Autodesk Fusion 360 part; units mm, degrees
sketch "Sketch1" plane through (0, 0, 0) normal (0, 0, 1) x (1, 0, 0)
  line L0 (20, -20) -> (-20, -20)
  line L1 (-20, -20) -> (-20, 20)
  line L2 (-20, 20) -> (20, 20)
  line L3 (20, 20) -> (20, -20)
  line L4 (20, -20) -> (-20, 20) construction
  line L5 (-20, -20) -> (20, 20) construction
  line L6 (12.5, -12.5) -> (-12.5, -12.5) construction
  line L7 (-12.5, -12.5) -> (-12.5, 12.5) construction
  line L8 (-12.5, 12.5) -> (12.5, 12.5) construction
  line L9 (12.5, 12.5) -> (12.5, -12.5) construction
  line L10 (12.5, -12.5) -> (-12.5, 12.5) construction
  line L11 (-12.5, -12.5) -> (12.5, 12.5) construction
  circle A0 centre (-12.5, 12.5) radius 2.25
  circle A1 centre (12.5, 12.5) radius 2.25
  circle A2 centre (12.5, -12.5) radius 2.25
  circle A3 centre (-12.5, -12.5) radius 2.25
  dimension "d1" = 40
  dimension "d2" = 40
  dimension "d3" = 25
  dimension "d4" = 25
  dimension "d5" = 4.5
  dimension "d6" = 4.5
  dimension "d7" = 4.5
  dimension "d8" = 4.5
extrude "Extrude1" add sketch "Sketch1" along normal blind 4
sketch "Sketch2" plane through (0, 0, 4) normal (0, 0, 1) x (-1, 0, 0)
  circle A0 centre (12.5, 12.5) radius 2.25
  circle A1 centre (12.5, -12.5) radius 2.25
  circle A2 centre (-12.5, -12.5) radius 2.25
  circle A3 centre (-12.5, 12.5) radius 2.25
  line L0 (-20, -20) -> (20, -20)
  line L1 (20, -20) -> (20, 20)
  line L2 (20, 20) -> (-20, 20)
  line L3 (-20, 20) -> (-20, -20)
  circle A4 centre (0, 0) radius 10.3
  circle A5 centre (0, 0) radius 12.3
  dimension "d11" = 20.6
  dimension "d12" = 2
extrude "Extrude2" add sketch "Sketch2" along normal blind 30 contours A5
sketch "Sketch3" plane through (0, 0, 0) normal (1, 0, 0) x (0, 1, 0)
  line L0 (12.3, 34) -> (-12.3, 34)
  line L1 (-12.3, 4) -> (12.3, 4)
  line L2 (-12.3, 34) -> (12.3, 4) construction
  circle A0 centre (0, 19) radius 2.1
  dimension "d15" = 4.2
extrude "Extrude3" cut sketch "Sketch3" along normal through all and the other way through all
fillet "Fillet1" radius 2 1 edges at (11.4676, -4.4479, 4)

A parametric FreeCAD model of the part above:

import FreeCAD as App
import Part
import Sketcher

V = App.Vector
Q = App.Units.Quantity


def edges_at(feature, points):
    """Names of the edges that pass closest to the given points."""
    edges = feature.Shape.Edges
    near = lambda p: min(range(len(edges)), key=lambda i: edges[i].distToShape(Part.Vertex(*p))[0])
    return sorted({f"Edge{near(p) + 1}" for p in points})

doc = App.newDocument("Part")
body = doc.addObject("PartDesign::Body", "Body")

sketch1 = doc.addObject("Sketcher::SketchObject", "Sketch")
body.addObject(sketch1)
sketch1.AttachmentSupport = (doc.XY_Plane, [""])
sketch1.MapMode = "FlatFace"
sketch1.addGeometry([
    Part.LineSegment(V(-20, -20, 0), V(20, -20, 0)),
    Part.LineSegment(V(20, -20, 0), V(20, 20, 0)),
    Part.LineSegment(V(20, 20, 0), V(-20, 20, 0)),
    Part.LineSegment(V(-20, 20, 0), V(-20, -20, 0)),
    Part.Circle(V(-12.5, -12.5, 0), V(0, 0, 1), 2.2),
    Part.Circle(V(12.5, -12.5, 0), V(0, 0, 1), 2.2),
    Part.Circle(V(-12.5, 12.5, 0), V(0, 0, 1), 2.2),
    Part.Circle(V(12.5, 12.5, 0), V(0, 0, 1), 2.2),
], False)
sketch1.addConstraint([
    Sketcher.Constraint("Coincident", 0, 2, 1, 1),
    Sketcher.Constraint("Coincident", 1, 2, 2, 1),
    Sketcher.Constraint("Coincident", 2, 2, 3, 1),
    Sketcher.Constraint("Coincident", 3, 2, 0, 1),
    Sketcher.Constraint("Horizontal", 0),
    Sketcher.Constraint("Vertical", 1),
    Sketcher.Constraint("Horizontal", 2),
    Sketcher.Constraint("Vertical", 3),
    Sketcher.Constraint("Equal", 4, 5),
    Sketcher.Constraint("Equal", 5, 6),
    Sketcher.Constraint("Equal", 6, 7),
    Sketcher.Constraint("Symmetric", 5, 3, 6, 3, -1, 1),
    Sketcher.Constraint("Symmetric", 4, 3, 7, 3, -1, 1),
    Sketcher.Constraint("Symmetric", 0, 2, 2, 2, -1, 1),
    Sketcher.Constraint("Symmetric", 4, 3, 5, 3, -2),
    Sketcher.Constraint("Equal", 2, 1),
    Sketcher.Constraint("Diameter", 4, Q("4.5 mm")),
    Sketcher.Constraint("DistanceX", 0, 1, 0, 2, Q("40 mm")),
    Sketcher.Constraint("DistanceX", 4, 3, 5, 3, Q("25 mm")),
    Sketcher.Constraint("DistanceY", 4, 3, 6, 3, Q("25 mm")),
])
pad1 = doc.addObject("PartDesign::Pad", "Pad")
body.addObject(pad1)
pad1.Profile = sketch1
pad1.Length = 4

sketch2 = doc.addObject("Sketcher::SketchObject", "Sketch001")
body.addObject(sketch2)
sketch2.AttachmentSupport = (doc.XY_Plane, [""])
sketch2.MapMode = "FlatFace"
sketch2.AttachmentOffset = App.Placement(V(0, 0, 4), App.Rotation())
sketch2.addGeometry([
    Part.Circle(V(0, 0, 0), V(0, 0, 1), 12),
    Part.Circle(V(0, 0, 0), V(0, 0, 1), 10),
], False)
sketch2.addConstraint([
    Sketcher.Constraint("Coincident", 0, 3, -1, 1),
    Sketcher.Constraint("Coincident", 1, 3, -1, 1),
    Sketcher.Constraint("Diameter", 1, Q("20.6 mm")),
    Sketcher.Constraint("Diameter", 0, Q("24.6 mm")),
])
pad2 = doc.addObject("PartDesign::Pad", "Pad001")
body.addObject(pad2)
pad2.Profile = sketch2
pad2.Length = 30

sketch3 = doc.addObject("Sketcher::SketchObject", "Sketch002")
body.addObject(sketch3)
sketch3.AttachmentSupport = (doc.YZ_Plane, [""])
sketch3.MapMode = "FlatFace"
sketch3.addGeometry(Part.Circle(V(0, 19, 0), V(0, 0, 1), 2.1), False)
sketch3.addConstraint([
    Sketcher.Constraint("PointOnObject", 0, 3, -2),
    Sketcher.Constraint("Diameter", 0, Q("4.2 mm")),
    Sketcher.Constraint("DistanceY", -1, 1, 0, 3, Q("19 mm")),
])
pocket1 = doc.addObject("PartDesign::Pocket", "Pocket")
body.addObject(pocket1)
pocket1.Profile = sketch3
pocket1.Type = "ThroughAll"
pocket1.Midplane = True
doc.recompute()

fillet = doc.addObject("PartDesign::Fillet", "Fillet")
body.addObject(fillet)
fillet.Base = (pocket1, edges_at(pocket1, [(11.468, -4.448, 4)]))
fillet.Radius = 2

doc.recompute()
